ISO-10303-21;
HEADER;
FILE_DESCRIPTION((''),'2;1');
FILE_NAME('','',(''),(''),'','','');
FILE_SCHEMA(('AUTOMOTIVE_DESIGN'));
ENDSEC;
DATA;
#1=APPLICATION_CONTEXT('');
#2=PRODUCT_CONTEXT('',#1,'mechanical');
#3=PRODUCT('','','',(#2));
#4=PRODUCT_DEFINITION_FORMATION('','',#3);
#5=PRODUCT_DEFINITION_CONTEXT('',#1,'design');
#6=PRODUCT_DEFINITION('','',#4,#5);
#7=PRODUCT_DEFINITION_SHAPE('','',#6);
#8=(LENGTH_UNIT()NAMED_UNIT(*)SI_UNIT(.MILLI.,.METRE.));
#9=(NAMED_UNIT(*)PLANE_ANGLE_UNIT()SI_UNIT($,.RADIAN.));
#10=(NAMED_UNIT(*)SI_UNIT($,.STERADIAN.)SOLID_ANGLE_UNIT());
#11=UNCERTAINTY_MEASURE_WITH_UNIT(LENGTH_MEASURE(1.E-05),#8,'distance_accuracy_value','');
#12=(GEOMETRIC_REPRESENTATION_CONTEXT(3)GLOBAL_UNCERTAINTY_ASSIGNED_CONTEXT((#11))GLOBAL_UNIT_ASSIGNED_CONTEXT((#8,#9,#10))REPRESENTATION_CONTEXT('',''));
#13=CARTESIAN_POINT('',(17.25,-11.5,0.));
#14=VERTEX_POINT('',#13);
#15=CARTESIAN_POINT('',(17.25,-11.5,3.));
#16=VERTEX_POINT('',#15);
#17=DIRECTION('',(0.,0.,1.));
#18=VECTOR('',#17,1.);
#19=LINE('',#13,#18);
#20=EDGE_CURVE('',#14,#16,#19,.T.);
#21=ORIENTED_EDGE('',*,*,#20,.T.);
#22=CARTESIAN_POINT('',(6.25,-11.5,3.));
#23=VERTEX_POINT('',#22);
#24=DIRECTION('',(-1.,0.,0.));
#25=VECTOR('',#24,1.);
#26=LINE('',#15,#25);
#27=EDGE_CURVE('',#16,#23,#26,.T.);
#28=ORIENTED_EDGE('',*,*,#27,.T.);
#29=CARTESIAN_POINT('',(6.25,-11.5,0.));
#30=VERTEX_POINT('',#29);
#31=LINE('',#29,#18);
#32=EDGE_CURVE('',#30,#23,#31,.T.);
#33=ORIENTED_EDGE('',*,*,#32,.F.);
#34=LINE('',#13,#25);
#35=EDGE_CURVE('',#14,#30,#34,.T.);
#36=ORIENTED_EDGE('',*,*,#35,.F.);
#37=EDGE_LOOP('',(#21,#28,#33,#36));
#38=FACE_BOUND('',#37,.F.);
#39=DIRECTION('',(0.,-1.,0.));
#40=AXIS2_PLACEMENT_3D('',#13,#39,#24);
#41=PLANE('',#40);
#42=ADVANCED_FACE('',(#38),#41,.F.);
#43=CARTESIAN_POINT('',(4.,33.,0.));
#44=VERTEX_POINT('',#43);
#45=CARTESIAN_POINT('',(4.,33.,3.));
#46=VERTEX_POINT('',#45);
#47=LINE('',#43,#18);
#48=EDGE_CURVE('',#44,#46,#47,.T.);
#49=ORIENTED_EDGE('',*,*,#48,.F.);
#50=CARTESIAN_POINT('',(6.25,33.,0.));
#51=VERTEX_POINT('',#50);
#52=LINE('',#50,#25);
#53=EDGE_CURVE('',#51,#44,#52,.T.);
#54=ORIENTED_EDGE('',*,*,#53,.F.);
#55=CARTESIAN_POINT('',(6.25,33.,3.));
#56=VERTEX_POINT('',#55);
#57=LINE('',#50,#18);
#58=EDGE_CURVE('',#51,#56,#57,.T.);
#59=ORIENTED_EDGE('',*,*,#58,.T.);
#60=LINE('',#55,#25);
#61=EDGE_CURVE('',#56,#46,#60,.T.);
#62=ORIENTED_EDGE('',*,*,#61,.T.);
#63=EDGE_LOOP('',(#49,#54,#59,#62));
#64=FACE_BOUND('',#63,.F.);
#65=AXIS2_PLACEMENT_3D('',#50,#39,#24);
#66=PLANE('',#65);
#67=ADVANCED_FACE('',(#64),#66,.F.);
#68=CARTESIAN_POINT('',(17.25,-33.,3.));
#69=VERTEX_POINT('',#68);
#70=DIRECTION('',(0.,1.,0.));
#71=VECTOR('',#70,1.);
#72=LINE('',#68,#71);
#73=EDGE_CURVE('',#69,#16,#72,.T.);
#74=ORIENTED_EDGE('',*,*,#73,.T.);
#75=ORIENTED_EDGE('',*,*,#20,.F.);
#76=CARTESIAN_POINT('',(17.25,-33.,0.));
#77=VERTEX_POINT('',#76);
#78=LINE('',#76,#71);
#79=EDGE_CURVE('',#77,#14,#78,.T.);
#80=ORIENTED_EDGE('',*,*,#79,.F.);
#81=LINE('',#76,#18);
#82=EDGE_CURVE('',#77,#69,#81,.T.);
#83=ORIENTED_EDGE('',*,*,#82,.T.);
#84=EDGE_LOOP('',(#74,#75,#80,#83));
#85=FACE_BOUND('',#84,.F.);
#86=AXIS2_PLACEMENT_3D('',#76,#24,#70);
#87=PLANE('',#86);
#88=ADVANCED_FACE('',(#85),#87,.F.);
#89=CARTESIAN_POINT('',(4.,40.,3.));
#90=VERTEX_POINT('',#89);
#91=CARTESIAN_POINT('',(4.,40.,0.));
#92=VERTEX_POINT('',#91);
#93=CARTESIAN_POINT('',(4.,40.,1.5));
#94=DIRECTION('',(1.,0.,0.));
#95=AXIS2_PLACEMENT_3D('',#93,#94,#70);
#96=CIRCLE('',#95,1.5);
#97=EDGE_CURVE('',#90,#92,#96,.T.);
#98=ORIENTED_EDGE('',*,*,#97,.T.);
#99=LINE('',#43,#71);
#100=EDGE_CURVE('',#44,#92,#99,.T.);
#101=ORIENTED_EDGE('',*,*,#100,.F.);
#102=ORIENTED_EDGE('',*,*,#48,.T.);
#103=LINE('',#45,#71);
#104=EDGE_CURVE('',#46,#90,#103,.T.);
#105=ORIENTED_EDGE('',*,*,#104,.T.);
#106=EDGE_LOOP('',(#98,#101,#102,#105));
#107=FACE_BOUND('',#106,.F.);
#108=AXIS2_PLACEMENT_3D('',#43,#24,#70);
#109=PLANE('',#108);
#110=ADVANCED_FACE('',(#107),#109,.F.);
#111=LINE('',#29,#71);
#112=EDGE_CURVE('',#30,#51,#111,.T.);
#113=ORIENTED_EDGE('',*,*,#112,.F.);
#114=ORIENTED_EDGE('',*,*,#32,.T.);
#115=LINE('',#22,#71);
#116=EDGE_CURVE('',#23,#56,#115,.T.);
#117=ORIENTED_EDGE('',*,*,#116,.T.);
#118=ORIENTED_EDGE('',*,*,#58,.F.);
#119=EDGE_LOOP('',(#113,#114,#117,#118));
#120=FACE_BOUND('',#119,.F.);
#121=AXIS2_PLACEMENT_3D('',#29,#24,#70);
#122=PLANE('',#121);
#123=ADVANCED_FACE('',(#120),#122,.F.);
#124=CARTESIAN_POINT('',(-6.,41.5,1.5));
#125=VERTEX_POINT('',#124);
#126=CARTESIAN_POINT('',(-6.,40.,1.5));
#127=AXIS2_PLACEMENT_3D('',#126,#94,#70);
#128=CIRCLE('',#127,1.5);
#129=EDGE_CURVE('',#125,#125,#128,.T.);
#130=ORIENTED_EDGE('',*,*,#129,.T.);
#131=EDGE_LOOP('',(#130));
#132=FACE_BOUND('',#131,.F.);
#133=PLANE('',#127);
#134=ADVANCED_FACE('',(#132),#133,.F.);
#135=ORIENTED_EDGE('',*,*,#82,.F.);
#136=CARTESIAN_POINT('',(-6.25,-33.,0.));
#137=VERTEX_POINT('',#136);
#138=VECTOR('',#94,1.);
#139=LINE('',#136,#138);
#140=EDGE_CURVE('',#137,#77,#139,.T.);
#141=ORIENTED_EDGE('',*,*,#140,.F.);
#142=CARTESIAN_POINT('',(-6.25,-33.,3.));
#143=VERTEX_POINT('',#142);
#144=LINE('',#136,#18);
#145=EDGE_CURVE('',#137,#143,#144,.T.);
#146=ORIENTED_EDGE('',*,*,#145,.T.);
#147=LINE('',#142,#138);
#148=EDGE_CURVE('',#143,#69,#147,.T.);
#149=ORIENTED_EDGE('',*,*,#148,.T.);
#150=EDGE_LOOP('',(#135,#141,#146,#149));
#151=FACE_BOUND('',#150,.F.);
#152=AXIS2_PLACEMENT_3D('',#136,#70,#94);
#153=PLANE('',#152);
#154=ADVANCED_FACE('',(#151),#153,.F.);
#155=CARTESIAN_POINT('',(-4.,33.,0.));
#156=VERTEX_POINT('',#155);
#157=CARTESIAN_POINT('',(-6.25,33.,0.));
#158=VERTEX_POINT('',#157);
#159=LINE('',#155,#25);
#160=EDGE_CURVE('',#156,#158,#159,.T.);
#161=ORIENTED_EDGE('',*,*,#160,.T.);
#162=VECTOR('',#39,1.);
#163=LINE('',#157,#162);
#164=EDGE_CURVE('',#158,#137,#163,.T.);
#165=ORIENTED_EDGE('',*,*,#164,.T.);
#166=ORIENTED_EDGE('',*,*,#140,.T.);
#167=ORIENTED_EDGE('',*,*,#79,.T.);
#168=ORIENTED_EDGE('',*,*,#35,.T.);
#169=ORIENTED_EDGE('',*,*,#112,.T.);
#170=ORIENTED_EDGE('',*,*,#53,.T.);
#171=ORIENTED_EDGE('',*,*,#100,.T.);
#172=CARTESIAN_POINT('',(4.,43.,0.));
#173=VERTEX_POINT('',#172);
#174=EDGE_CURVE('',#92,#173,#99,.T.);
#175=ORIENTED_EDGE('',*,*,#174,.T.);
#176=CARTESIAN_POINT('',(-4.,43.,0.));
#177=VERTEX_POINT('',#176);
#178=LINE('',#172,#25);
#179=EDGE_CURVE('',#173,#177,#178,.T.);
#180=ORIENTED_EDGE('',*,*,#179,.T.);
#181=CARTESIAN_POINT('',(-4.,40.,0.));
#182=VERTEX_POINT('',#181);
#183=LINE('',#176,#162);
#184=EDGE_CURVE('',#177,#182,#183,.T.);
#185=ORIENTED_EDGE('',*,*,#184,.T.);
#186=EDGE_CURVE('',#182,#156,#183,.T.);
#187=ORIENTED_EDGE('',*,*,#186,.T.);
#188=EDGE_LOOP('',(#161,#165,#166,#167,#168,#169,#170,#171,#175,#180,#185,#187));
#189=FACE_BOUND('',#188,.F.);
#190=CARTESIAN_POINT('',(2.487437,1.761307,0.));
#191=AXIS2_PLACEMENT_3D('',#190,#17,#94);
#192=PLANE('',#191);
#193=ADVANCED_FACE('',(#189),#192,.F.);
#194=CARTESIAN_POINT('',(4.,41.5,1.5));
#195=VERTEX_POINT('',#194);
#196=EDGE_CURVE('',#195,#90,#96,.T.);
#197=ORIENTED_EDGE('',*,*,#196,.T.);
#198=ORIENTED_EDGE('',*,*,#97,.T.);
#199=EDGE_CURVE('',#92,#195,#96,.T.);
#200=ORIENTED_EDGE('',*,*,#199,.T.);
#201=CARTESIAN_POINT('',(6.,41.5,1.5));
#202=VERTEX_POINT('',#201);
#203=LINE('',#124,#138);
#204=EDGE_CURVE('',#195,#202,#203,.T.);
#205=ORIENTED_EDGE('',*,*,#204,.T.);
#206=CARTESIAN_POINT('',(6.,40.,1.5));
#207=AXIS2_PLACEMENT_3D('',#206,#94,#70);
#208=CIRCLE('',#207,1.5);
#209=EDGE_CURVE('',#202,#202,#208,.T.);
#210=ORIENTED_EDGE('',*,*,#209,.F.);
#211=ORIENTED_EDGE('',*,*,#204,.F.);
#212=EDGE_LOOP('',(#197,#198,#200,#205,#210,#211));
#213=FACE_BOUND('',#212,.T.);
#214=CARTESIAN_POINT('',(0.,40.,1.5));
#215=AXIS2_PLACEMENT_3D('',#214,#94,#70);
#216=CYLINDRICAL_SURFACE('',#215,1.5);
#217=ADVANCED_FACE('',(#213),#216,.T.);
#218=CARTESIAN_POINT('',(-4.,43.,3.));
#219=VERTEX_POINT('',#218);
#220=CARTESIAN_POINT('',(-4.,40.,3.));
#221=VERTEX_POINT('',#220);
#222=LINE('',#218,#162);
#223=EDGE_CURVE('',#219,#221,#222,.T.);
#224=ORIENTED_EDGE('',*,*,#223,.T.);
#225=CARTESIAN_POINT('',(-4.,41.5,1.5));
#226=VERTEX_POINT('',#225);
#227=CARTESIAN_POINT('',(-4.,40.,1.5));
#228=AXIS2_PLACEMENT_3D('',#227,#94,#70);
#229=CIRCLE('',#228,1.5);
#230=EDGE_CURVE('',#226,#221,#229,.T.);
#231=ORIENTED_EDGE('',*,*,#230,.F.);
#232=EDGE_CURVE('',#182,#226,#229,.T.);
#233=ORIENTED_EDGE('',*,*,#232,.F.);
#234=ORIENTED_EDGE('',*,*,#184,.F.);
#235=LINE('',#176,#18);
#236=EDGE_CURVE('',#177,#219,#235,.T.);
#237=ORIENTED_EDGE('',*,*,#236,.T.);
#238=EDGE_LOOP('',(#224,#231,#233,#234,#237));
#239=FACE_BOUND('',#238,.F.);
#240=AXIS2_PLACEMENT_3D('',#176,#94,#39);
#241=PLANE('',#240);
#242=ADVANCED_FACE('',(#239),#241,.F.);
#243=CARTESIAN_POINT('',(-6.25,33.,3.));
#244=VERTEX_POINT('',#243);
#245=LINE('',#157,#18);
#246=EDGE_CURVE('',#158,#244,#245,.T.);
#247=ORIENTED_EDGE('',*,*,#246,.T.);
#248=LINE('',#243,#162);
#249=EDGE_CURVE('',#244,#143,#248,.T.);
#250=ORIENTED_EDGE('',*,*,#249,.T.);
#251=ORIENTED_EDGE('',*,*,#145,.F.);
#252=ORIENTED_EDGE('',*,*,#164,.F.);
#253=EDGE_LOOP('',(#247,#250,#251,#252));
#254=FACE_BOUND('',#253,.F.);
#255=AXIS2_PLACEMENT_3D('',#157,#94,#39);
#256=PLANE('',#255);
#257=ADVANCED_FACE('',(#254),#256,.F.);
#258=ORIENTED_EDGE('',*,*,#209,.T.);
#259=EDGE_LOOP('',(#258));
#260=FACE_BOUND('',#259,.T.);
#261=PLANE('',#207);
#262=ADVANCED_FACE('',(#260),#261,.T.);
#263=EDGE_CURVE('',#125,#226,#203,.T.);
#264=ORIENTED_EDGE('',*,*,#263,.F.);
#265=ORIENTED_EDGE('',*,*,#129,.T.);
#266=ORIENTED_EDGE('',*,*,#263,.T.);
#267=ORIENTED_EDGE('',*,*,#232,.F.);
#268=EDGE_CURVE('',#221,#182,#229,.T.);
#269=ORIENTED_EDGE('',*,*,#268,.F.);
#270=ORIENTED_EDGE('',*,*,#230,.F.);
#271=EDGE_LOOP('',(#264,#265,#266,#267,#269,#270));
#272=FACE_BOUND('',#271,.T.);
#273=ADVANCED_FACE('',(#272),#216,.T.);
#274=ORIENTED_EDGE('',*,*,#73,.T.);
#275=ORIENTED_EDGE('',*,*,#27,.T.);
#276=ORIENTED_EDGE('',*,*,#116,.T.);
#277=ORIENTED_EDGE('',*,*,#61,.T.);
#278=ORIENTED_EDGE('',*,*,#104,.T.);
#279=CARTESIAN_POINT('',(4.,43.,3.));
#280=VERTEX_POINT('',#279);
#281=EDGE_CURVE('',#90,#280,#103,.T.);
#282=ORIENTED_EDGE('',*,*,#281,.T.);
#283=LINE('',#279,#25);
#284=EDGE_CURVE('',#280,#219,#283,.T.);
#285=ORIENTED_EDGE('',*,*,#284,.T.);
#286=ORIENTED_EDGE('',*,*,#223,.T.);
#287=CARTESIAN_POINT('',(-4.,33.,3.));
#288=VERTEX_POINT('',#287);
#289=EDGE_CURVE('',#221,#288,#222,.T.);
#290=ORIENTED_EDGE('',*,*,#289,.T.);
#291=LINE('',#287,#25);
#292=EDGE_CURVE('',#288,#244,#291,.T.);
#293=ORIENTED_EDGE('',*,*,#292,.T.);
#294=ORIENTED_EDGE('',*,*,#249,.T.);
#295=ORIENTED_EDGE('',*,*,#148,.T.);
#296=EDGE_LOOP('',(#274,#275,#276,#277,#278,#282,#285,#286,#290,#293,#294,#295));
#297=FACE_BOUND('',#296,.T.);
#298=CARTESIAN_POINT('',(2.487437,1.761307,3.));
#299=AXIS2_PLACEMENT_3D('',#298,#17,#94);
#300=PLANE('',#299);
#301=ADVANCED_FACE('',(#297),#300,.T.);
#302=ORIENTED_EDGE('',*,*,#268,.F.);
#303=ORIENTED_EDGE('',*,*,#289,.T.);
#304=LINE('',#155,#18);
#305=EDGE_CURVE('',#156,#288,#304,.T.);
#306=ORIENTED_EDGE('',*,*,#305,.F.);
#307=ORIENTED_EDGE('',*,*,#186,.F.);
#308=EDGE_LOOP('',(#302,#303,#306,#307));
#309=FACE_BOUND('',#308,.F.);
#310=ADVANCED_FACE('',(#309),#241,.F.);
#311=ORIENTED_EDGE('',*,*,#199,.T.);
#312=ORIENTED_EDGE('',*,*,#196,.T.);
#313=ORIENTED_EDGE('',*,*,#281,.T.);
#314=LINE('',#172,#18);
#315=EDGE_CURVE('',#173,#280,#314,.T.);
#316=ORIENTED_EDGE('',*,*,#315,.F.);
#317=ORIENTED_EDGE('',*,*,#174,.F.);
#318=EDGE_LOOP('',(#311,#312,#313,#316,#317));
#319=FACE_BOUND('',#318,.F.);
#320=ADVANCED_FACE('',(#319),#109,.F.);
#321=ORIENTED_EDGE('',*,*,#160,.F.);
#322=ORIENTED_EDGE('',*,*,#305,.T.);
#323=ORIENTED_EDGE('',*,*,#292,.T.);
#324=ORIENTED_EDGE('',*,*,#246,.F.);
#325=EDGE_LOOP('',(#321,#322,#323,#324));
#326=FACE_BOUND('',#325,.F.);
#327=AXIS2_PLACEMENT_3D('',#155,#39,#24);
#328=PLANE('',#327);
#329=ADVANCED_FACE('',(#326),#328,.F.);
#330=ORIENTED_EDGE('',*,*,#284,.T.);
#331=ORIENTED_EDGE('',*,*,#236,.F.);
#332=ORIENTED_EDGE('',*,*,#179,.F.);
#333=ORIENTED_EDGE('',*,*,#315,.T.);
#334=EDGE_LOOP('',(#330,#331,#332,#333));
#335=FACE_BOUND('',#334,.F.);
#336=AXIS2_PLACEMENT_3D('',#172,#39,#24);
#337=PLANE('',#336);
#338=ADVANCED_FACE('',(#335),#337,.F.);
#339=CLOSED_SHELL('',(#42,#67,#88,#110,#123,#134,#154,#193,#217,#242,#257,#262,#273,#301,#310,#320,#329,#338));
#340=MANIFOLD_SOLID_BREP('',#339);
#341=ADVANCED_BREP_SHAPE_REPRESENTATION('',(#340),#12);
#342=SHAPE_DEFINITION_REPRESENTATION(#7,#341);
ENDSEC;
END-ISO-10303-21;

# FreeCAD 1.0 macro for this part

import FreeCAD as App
import Part
import Sketcher
from FreeCAD import Vector
Q = App.Units.Quantity


def add_polygon(sketch, points):
    """Adds a closed chain of lines whose ends are joined by coincident constraints."""
    first, n = sketch.GeometryCount, len(points)
    for a, b in zip(points, points[1:] + points[:1]):
        sketch.addGeometry(Part.LineSegment(App.Vector(*a, 0), App.Vector(*b, 0)), False)
    for i in range(n):
        sketch.addConstraint(Sketcher.Constraint("Coincident", first + i, 2, first + (i + 1) % n, 1))

doc = App.newDocument("Part")
body = doc.addObject("PartDesign::Body", "Body")

sketch1 = doc.addObject("Sketcher::SketchObject", "Sketch")
body.addObject(sketch1)
sketch1.AttachmentSupport = (doc.XY_Plane, [""])
sketch1.MapMode = "FlatFace"
add_polygon(sketch1, [(-6.2, 33), (-6.2, -33), (17.2, -33), (17.2, -11.5), (6.2, -11.5), (6.2, 33), (4, 33), (4, 43), (-4, 43), (-4, 33)])
sketch1.addConstraint([
    Sketcher.Constraint("Vertical", 0),
    Sketcher.Constraint("Horizontal", 1),
    Sketcher.Constraint("Vertical", 2),
    Sketcher.Constraint("Horizontal", 3),
    Sketcher.Constraint("Vertical", 4),
    Sketcher.Constraint("Horizontal", 5),
    Sketcher.Constraint("Vertical", 6),
    Sketcher.Constraint("Horizontal", 7),
    Sketcher.Constraint("Vertical", 8),
    Sketcher.Constraint("Horizontal", 9),
    Sketcher.Constraint("Symmetric", 0, 2, 4, 2, -1, 1),
    Sketcher.Constraint("Symmetric", 5, 2, 8, 2, -2),
    Sketcher.Constraint("DistanceX", 3, 2, 3, 1, Q("11 mm")),
    Sketcher.Constraint("DistanceX", 7, 2, 7, 1, Q("8 mm")),
    Sketcher.Constraint("DistanceY", 0, 2, 0, 1, Q("66 mm")),
    Sketcher.Constraint("DistanceY", 6, 1, 6, 2, Q("10 mm")),
    Sketcher.Constraint("DistanceX", 1, 1, 1, 2, Q("23.5 mm")),
    Sketcher.Constraint("DistanceY", 2, 1, 2, 2, Q("21.5 mm")),
])
pad1 = doc.addObject("PartDesign::Pad", "Pad")
body.addObject(pad1)
pad1.Profile = sketch1
pad1.Length = 3

sketch2 = doc.addObject("Sketcher::SketchObject", "Sketch001")
body.addObject(sketch2)
sketch2.AttachmentSupport = (doc.YZ_Plane, [""])
sketch2.MapMode = "FlatFace"
sketch2.addGeometry(Part.Circle(Vector(40, 1.5, 0), Vector(0, 0, 1), 1.5), False)
sketch2.addConstraint([
    Sketcher.Constraint("Diameter", 0, Q("3 mm")),
    Sketcher.Constraint("DistanceX", -1, 1, 0, 3, Q("40 mm")),
    Sketcher.Constraint("DistanceY", -1, 1, 0, 3, Q("1.5 mm")),
])
pad2 = doc.addObject("PartDesign::Pad", "Pad001")
body.addObject(pad2)
pad2.Profile = sketch2
pad2.Length = 12
pad2.Midplane = True

doc.recompute()
